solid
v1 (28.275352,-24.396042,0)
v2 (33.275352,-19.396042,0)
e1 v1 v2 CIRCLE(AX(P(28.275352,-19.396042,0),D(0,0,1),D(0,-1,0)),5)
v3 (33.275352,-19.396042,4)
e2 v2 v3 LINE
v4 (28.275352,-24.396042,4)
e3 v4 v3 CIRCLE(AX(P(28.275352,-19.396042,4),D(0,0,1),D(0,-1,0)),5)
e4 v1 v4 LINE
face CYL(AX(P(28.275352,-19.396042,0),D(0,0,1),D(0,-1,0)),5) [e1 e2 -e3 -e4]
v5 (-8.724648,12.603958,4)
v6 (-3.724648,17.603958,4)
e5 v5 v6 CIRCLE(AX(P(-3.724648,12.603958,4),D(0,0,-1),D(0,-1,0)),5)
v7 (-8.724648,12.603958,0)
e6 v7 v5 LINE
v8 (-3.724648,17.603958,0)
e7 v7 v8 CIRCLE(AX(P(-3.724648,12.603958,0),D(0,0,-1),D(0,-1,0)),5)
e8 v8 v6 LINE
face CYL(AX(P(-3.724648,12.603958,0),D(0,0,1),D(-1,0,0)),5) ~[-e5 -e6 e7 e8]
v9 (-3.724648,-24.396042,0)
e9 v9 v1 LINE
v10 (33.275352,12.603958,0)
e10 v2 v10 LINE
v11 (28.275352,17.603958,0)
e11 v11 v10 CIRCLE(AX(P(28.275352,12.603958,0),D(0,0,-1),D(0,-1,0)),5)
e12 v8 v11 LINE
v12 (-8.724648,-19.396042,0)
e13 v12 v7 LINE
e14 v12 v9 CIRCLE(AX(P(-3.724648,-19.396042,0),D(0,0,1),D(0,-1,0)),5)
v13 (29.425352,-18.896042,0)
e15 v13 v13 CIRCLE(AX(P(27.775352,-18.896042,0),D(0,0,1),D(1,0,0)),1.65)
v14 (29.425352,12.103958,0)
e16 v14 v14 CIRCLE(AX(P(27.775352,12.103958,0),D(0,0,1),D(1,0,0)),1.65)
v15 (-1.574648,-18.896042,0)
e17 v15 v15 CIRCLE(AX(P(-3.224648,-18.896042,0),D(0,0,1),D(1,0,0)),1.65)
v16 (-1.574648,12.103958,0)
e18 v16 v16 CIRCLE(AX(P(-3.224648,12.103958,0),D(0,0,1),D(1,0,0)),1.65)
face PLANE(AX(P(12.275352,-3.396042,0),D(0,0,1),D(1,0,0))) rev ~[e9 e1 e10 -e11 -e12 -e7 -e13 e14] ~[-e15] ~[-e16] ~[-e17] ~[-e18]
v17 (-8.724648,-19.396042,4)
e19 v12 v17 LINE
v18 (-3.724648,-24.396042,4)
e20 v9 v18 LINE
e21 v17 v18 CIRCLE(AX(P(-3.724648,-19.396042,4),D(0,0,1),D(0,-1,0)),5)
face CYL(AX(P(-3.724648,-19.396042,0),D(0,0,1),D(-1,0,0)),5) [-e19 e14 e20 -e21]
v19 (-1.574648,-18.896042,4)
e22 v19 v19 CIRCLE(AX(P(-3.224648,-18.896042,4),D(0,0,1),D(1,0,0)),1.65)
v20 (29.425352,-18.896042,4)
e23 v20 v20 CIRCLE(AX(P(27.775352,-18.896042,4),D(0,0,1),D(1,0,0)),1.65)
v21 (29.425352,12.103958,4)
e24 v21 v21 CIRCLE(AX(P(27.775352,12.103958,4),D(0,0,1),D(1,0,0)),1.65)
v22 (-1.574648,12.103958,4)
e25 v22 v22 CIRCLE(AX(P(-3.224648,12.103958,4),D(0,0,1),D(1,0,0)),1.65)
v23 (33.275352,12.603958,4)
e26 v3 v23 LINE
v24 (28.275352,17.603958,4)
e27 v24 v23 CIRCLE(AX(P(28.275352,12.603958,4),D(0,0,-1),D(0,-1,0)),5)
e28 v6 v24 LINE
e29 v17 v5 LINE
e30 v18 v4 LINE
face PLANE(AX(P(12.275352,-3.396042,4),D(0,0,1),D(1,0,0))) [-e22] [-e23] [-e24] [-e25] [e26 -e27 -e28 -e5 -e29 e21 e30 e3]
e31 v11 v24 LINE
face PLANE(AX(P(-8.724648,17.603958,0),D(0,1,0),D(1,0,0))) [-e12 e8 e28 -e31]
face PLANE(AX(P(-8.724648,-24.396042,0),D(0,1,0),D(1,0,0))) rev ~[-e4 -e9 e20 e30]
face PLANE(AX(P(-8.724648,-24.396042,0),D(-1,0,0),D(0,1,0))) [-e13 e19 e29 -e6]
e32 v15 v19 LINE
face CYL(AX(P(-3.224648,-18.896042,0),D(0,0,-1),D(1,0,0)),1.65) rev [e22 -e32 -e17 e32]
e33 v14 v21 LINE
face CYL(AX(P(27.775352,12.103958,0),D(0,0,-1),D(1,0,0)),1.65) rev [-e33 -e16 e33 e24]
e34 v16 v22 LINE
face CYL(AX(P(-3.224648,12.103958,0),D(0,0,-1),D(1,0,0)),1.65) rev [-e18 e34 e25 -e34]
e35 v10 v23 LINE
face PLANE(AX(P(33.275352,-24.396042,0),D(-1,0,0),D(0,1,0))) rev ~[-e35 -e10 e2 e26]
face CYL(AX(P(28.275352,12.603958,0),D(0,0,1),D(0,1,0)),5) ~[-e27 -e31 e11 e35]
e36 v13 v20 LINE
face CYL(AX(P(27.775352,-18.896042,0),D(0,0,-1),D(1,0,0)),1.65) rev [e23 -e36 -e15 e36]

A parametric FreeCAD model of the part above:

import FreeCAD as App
import Part
import Sketcher
from FreeCAD import Vector


def edges_at(feature, points):
    """Names of the edges that pass closest to the given points."""
    edges = feature.Shape.Edges
    near = lambda p: min(range(len(edges)), key=lambda i: edges[i].distToShape(Part.Vertex(*p))[0])
    return sorted({f"Edge{near(p) + 1}" for p in points})


def add_polygon(sketch, points):
    """Adds a closed chain of lines whose ends are joined by coincident constraints."""
    first, n = sketch.GeometryCount, len(points)
    for a, b in zip(points, points[1:] + points[:1]):
        sketch.addGeometry(Part.LineSegment(App.Vector(*a, 0), App.Vector(*b, 0)), False)
    for i in range(n):
        sketch.addConstraint(Sketcher.Constraint("Coincident", first + i, 2, first + (i + 1) % n, 1))

doc = App.newDocument("Part")
body = doc.addObject("PartDesign::Body", "Body")

# Sketch on XY plane
sketch1 = body.newObject("Sketcher::SketchObject", "Sketch")
sketch1.AttachmentSupport = (doc.getObject("XY_Plane"), [""])
sketch1.MapMode = "FlatFace"
add_polygon(sketch1, [(-8.7, 17.6), (-8.7, -24.4), (33.3, -24.4), (33.3, 17.6)])  # lines 0-3
sketch1.addGeometry(Part.Circle(Vector(-3.2, -18.9, 0), Vector(0, 0, 1), 1.6), False)  # 4
sketch1.addGeometry(Part.Circle(Vector(27.8, -18.9, 0), Vector(0, 0, 1), 1.6), False)  # 5
sketch1.addGeometry(Part.Circle(Vector(-3.2, 12.1, 0), Vector(0, 0, 1), 1.6), False)  # 6
sketch1.addGeometry(Part.Circle(Vector(27.8, 12.1, 0), Vector(0, 0, 1), 1.6), False)  # 7
sketch1.addConstraint(Sketcher.Constraint("Vertical", 0))
sketch1.addConstraint(Sketcher.Constraint("Horizontal", 1))
sketch1.addConstraint(Sketcher.Constraint("Vertical", 2))
sketch1.addConstraint(Sketcher.Constraint("Horizontal", 3))
sketch1.addConstraint(Sketcher.Constraint("Equal", 4, 5))
sketch1.addConstraint(Sketcher.Constraint("Equal", 5, 6))
sketch1.addConstraint(Sketcher.Constraint("Equal", 6, 7))
sketch1.addConstraint(Sketcher.Constraint("Horizontal", 4, 3, 5, 3))
sketch1.addConstraint(Sketcher.Constraint("Horizontal", 6, 3, 7, 3))
sketch1.addConstraint(Sketcher.Constraint("Vertical", 4, 3, 6, 3))
sketch1.addConstraint(Sketcher.Constraint("Vertical", 5, 3, 7, 3))
sketch1.addConstraint(Sketcher.Constraint("Equal", 3, 0))
sketch1.addConstraint(Sketcher.Constraint("Diameter", 4, 3.3))
sketch1.addConstraint(Sketcher.Constraint("DistanceX", 1, 1, 1, 2, 42.0))
sketch1.addConstraint(Sketcher.Constraint("DistanceX", 4, 3, 5, 3, 31.0))
sketch1.addConstraint(Sketcher.Constraint("DistanceY", 4, 3, 6, 3, 31.0))
sketch1.addConstraint(Sketcher.Constraint("DistanceX", 0, 2, 4, 3, 5.5))
sketch1.addConstraint(Sketcher.Constraint("DistanceY", 0, 2, 4, 3, 5.5))
sketch1.addConstraint(Sketcher.Constraint("DistanceX", 4, 3, -1, 1, 3.224648))
sketch1.addConstraint(Sketcher.Constraint("DistanceY", 4, 3, -1, 1, 18.896042))
pad1 = body.newObject("PartDesign::Pad", "Pad")
pad1.Profile = sketch1
pad1.Length = 4
doc.recompute()

fillet = body.newObject("PartDesign::Fillet", "Fillet")
fillet.Base = (pad1, edges_at(pad1, [
    (-8.725, -24.396, 2),
    (33.275, -24.396, 2),
    (33.275, 17.604, 2),
    (-8.725, 17.604, 2),
]))
fillet.Radius = 5

doc.recompute()
